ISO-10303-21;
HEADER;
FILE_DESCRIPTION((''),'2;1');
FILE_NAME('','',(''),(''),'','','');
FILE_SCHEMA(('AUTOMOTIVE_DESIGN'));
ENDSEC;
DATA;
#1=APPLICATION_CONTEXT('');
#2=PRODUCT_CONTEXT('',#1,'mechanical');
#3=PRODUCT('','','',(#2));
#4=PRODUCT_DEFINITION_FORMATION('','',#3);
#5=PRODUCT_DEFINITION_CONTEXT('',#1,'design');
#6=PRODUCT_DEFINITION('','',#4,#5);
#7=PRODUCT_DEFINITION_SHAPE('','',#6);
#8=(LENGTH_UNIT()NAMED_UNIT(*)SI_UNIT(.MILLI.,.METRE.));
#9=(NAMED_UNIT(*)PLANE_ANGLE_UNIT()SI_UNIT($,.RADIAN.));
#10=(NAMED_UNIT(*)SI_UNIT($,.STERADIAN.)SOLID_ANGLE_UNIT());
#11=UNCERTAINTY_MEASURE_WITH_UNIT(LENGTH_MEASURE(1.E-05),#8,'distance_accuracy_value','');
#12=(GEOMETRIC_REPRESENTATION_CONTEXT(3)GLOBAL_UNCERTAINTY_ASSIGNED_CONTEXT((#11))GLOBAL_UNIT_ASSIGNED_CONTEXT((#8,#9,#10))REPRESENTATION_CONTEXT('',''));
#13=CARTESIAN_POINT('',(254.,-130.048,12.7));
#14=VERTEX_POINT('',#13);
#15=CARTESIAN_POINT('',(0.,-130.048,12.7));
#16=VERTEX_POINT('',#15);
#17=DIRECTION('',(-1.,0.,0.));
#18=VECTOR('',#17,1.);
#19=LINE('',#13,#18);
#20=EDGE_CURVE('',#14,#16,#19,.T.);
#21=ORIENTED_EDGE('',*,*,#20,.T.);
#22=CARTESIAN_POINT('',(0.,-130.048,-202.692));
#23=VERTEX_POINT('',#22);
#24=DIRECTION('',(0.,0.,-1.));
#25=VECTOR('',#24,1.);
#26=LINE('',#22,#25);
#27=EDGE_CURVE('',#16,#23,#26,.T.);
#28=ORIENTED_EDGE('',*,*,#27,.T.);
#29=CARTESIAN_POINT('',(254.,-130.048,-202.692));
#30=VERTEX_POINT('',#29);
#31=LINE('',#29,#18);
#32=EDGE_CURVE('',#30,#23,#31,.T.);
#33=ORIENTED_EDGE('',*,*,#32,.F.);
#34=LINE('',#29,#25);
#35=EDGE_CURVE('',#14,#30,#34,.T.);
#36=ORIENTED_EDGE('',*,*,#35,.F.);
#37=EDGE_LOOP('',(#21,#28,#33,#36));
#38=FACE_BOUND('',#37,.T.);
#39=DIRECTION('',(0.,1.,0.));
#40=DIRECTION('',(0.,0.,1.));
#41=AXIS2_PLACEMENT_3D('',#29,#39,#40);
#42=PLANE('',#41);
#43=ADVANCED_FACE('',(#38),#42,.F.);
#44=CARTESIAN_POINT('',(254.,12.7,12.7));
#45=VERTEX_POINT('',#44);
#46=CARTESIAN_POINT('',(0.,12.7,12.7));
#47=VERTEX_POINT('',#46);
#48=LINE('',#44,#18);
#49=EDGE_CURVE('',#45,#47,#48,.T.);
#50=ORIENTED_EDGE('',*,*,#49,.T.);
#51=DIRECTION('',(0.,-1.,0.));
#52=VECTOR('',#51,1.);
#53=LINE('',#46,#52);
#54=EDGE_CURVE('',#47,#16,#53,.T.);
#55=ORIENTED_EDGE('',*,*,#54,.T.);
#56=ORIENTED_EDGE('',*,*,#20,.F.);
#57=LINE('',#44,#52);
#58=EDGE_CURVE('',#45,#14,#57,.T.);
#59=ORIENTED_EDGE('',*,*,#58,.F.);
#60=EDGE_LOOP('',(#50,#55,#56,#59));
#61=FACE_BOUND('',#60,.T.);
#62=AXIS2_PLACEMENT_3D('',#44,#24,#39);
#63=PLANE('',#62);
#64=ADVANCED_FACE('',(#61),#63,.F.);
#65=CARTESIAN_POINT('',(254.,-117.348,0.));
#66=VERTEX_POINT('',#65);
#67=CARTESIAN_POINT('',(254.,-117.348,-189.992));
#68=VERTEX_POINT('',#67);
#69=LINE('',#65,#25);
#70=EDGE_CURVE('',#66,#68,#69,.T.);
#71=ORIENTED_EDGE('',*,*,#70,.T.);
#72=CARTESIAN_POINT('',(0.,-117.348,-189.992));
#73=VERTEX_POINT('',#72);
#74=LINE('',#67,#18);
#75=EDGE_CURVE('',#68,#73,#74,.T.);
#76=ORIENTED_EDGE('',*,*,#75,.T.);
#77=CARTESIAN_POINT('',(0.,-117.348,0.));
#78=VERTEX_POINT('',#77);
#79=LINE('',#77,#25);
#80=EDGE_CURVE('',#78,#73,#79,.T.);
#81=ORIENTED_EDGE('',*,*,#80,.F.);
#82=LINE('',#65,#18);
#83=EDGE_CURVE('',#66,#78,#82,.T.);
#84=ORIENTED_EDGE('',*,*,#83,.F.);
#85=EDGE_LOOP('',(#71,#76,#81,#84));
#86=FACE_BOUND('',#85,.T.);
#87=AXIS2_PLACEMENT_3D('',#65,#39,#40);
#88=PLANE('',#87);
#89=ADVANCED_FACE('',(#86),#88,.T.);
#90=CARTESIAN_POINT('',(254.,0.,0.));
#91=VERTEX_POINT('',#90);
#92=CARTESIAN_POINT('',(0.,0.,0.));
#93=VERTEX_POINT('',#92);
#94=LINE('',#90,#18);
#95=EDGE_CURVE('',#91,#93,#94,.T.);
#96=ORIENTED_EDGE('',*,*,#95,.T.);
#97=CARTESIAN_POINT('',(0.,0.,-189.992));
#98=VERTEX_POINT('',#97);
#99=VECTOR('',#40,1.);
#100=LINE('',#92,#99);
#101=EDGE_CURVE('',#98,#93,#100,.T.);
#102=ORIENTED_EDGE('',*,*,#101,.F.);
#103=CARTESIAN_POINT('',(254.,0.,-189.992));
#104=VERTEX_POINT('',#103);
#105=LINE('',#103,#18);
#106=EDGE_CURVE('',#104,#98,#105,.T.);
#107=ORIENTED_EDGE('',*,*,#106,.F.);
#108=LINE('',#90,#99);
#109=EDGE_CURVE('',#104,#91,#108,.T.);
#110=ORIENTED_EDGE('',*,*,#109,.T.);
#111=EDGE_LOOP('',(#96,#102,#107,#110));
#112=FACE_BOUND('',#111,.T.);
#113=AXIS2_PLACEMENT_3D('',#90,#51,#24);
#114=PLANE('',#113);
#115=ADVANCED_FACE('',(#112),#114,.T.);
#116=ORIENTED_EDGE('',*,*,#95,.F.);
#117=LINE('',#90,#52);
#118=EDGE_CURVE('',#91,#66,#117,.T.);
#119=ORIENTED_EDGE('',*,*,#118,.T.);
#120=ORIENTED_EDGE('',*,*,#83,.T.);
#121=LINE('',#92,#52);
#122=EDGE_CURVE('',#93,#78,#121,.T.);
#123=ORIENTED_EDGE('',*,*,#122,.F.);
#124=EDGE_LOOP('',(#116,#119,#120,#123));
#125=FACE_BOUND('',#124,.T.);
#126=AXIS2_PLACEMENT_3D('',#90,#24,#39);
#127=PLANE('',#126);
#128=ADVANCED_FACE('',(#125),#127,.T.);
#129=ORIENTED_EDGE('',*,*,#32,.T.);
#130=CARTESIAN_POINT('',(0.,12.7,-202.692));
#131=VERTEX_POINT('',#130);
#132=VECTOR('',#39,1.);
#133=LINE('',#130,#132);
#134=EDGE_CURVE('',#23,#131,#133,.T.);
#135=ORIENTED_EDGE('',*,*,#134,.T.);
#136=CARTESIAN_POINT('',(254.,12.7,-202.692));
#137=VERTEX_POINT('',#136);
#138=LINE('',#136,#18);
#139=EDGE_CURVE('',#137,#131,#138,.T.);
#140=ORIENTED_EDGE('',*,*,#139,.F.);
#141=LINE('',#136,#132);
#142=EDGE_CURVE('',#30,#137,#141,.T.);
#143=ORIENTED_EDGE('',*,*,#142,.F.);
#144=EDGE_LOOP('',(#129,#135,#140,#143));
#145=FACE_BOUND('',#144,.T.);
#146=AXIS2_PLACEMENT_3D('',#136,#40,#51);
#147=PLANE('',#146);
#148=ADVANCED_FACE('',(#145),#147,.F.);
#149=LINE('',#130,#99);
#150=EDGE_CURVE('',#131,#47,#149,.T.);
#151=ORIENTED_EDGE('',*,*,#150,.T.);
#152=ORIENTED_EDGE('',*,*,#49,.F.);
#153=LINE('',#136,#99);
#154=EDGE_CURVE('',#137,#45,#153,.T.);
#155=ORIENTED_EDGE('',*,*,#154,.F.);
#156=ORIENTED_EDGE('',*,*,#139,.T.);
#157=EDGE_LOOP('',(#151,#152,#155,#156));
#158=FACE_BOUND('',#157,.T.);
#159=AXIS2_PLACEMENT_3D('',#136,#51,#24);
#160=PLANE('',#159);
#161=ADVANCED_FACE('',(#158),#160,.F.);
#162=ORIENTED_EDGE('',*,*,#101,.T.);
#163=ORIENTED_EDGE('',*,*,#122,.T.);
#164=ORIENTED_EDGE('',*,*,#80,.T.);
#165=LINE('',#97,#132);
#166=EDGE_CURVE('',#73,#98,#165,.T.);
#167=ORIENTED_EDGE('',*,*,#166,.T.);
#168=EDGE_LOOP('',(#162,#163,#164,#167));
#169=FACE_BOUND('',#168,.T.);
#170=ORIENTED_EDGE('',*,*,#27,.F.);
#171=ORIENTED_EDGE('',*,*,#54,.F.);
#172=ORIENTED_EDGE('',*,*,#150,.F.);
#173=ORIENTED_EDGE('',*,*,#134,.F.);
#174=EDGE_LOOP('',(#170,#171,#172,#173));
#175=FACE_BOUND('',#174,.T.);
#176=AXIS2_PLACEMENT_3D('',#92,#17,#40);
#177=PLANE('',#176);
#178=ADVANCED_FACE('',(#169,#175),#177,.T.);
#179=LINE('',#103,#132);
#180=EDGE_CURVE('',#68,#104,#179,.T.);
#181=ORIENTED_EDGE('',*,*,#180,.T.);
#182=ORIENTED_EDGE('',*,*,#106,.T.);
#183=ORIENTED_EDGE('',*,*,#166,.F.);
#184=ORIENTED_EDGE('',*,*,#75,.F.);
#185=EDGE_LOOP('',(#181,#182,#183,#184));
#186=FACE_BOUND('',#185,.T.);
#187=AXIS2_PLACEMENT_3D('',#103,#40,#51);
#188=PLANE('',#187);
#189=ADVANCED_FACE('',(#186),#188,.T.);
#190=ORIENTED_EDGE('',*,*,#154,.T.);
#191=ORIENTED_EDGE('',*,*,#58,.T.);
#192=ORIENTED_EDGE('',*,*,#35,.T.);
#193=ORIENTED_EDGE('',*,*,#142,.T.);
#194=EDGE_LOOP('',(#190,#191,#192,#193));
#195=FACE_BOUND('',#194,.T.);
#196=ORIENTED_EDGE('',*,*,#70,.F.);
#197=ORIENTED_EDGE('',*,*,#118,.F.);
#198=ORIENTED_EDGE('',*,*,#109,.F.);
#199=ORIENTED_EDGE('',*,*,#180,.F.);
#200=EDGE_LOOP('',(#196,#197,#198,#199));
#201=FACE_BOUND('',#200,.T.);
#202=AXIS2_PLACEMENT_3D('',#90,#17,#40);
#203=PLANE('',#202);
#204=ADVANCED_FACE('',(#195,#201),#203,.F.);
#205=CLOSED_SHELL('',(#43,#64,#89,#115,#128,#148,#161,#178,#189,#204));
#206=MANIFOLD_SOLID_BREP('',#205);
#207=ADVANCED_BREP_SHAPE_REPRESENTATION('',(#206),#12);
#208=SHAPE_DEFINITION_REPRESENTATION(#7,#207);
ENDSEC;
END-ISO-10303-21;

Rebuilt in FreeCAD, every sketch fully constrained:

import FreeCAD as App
import Part
import Sketcher

V = App.Vector
Q = App.Units.Quantity


def add_polygon(sketch, points):
    """Adds a closed chain of lines whose ends are joined by coincident constraints."""
    first, n = sketch.GeometryCount, len(points)
    for a, b in zip(points, points[1:] + points[:1]):
        sketch.addGeometry(Part.LineSegment(App.Vector(*a, 0), App.Vector(*b, 0)), False)
    for i in range(n):
        sketch.addConstraint(Sketcher.Constraint("Coincident", first + i, 2, first + (i + 1) % n, 1))

doc = App.newDocument("Part")
body = doc.addObject("PartDesign::Body", "Body")

# Sketch on YZ plane
sketch1 = body.newObject("Sketcher::SketchObject", "Sketch")
sketch1.AttachmentSupport = (doc.getObject("YZ_Plane"), [""])
sketch1.MapMode = "FlatFace"
add_polygon(sketch1, [(12.7, 12.7), (-130.048, 12.7), (-130.048, -202.692), (12.7, -202.692)])  # lines 0-3
add_polygon(sketch1, [(-117.348, -189.992), (-117.348, 0), (0, 0), (0, -189.992)])  # lines 4-7
sketch1.addConstraint(Sketcher.Constraint("Horizontal", 0))
sketch1.addConstraint(Sketcher.Constraint("Vertical", 1))
sketch1.addConstraint(Sketcher.Constraint("Horizontal", 2))
sketch1.addConstraint(Sketcher.Constraint("Vertical", 3))
sketch1.addConstraint(Sketcher.Constraint("Vertical", 4))
sketch1.addConstraint(Sketcher.Constraint("Horizontal", 5))
sketch1.addConstraint(Sketcher.Constraint("Vertical", 6))
sketch1.addConstraint(Sketcher.Constraint("Horizontal", 7))
sketch1.addConstraint(Sketcher.Constraint("Coincident", 5, 2, -1, 1))
sketch1.addConstraint(Sketcher.Constraint("DistanceX", 0, 2, 0, 1, Q("5.62 in")))
sketch1.addConstraint(Sketcher.Constraint("DistanceX", 5, 1, 5, 2, Q("4.62 in")))
sketch1.addConstraint(Sketcher.Constraint("DistanceY", 1, 2, 1, 1, Q("8.48 in")))
sketch1.addConstraint(Sketcher.Constraint("DistanceY", 4, 1, 4, 2, Q("7.48 in")))
sketch1.addConstraint(Sketcher.Constraint("DistanceY", -1, 1, 0, 2, Q("0.5 in")))
sketch1.addConstraint(Sketcher.Constraint("DistanceX", -1, 1, 2, 2, Q("0.5 in")))
pad1 = body.newObject("PartDesign::Pad", "Pad")
pad1.Profile = sketch1
pad1.Length = Q("10 in")

doc.recompute()
